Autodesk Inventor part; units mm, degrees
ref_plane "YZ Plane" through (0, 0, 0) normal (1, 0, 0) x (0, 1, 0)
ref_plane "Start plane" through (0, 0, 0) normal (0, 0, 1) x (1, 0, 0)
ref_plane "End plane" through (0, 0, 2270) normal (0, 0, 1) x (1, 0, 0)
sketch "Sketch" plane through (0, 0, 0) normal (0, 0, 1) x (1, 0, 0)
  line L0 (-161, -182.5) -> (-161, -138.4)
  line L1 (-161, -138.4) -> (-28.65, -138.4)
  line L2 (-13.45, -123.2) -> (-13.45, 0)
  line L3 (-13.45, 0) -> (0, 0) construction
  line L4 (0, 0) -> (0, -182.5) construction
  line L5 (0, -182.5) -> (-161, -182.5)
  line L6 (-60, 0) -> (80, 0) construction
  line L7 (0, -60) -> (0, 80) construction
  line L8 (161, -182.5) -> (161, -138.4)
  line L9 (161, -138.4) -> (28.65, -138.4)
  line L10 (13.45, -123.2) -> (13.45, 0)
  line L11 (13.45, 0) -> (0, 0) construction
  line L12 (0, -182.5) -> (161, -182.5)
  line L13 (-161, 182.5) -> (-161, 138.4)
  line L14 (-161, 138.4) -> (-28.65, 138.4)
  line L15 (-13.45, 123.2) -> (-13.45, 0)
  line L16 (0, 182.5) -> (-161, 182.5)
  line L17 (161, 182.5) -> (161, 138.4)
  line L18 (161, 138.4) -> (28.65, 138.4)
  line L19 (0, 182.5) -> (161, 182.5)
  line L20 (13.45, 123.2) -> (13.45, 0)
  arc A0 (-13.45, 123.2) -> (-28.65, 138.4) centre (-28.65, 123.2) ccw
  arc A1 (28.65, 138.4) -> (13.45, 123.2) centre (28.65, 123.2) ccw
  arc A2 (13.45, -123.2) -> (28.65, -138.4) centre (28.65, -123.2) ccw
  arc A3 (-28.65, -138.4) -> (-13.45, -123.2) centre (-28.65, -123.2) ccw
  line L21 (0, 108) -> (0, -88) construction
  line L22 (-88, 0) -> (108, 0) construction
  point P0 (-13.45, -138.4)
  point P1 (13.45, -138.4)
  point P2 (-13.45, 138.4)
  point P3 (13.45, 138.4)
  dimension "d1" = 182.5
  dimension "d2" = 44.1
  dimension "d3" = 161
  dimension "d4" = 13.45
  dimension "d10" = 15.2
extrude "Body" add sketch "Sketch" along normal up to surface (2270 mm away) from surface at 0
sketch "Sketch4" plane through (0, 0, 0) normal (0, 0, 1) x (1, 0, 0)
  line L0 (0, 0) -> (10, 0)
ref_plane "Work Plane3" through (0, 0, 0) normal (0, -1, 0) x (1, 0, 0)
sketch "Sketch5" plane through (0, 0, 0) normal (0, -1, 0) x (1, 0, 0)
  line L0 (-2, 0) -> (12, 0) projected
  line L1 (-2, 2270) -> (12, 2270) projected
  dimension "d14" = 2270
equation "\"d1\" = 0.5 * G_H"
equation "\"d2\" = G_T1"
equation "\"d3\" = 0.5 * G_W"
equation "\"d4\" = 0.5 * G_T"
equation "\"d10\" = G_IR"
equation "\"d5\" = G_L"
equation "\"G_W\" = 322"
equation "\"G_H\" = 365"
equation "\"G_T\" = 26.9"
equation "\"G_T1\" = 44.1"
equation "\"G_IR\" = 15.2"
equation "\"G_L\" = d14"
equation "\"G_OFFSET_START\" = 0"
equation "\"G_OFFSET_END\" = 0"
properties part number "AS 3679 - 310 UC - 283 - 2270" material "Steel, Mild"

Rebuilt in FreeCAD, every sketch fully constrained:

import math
import FreeCAD as App
import Part
import Sketcher

V = App.Vector

doc = App.newDocument("Part")
body = doc.addObject("PartDesign::Body", "Body")

# Sketch on XY plane
sketch1 = body.newObject("Sketcher::SketchObject", "Sketch")
sketch1.AttachmentSupport = (doc.getObject("XY_Plane"), [""])
sketch1.MapMode = "FlatFace"
sketch1.addGeometry([
    Part.LineSegment(V(-161, -138.4, 0), V(-161, -182.5, 0)),  # 0
    Part.LineSegment(V(-161, -182.5, 0), V(161, -182.5, 0)),  # 1
    Part.LineSegment(V(161, -182.5, 0), V(161, -138.4, 0)),  # 2
    Part.LineSegment(V(161, -138.4, 0), V(28.65, -138.4, 0)),  # 3
    Part.ArcOfCircle(Part.Circle(V(28.65, -123.2, 0), V(0, 0, 1), 15.2), math.radians(180), math.radians(270)),  # 4
    Part.LineSegment(V(13.45, -123.2, 0), V(13.45, 123.2, 0)),  # 5
    Part.ArcOfCircle(Part.Circle(V(28.65, 123.2, 0), V(0, 0, 1), 15.2), math.radians(90), math.radians(180)),  # 6
    Part.LineSegment(V(28.65, 138.4, 0), V(161, 138.4, 0)),  # 7
    Part.LineSegment(V(161, 138.4, 0), V(161, 182.5, 0)),  # 8
    Part.LineSegment(V(161, 182.5, 0), V(-161, 182.5, 0)),  # 9
    Part.LineSegment(V(-161, 182.5, 0), V(-161, 138.4, 0)),  # 10
    Part.LineSegment(V(-161, 138.4, 0), V(-28.65, 138.4, 0)),  # 11
    Part.ArcOfCircle(Part.Circle(V(-28.65, 123.2, 0), V(0, 0, 1), 15.2), math.radians(0), math.radians(90)),  # 12
    Part.LineSegment(V(-13.45, 123.2, 0), V(-13.45, -123.2, 0)),  # 13
    Part.ArcOfCircle(Part.Circle(V(-28.65, -123.2, 0), V(0, 0, 1), 15.2), math.radians(-90), math.radians(0)),  # 14
    Part.LineSegment(V(-28.65, -138.4, 0), V(-161, -138.4, 0)),  # 15
], False)
sketch1.addConstraint([
    Sketcher.Constraint("Coincident", 0, 2, 1, 1),
    Sketcher.Constraint("Coincident", 1, 2, 2, 1),
    Sketcher.Constraint("Coincident", 2, 2, 3, 1),
    Sketcher.Constraint("Tangent", 3, 2, 4, 2),
    Sketcher.Constraint("Tangent", 4, 1, 5, 1),
    Sketcher.Constraint("Tangent", 5, 2, 6, 2),
    Sketcher.Constraint("Tangent", 6, 1, 7, 1),
    Sketcher.Constraint("Coincident", 7, 2, 8, 1),
    Sketcher.Constraint("Coincident", 8, 2, 9, 1),
    Sketcher.Constraint("Coincident", 9, 2, 10, 1),
    Sketcher.Constraint("Coincident", 10, 2, 11, 1),
    Sketcher.Constraint("Tangent", 11, 2, 12, 2),
    Sketcher.Constraint("Tangent", 12, 1, 13, 1),
    Sketcher.Constraint("Tangent", 13, 2, 14, 2),
    Sketcher.Constraint("Tangent", 14, 1, 15, 1),
    Sketcher.Constraint("Coincident", 15, 2, 0, 1),
    Sketcher.Constraint("Vertical", 0),
    Sketcher.Constraint("Horizontal", 1),
    Sketcher.Constraint("Vertical", 2),
    Sketcher.Constraint("Horizontal", 3),
    Sketcher.Constraint("Vertical", 5),
    Sketcher.Constraint("Horizontal", 7),
    Sketcher.Constraint("Vertical", 8),
    Sketcher.Constraint("Horizontal", 9),
    Sketcher.Constraint("Vertical", 10),
    Sketcher.Constraint("Horizontal", 11),
    Sketcher.Constraint("Vertical", 13),
    Sketcher.Constraint("Horizontal", 15),
    Sketcher.Constraint("Equal", 4, 6),
    Sketcher.Constraint("Equal", 6, 12),
    Sketcher.Constraint("Equal", 12, 14),
    Sketcher.Constraint("Symmetric", 4, 3, 12, 3, -1, 1),
    Sketcher.Constraint("Symmetric", 0, 2, 8, 2, -1, 1),
    Sketcher.Constraint("Symmetric", 7, 2, 10, 2, -2),
    Sketcher.Constraint("Symmetric", 2, 2, 15, 2, -2),
    Sketcher.Constraint("Radius", 4, 15.2),
    Sketcher.Constraint("DistanceY", 0, 2, 0, 1, 44.1),
    Sketcher.Constraint("DistanceX", 0, 2, -1, 1, 161.0),
    Sketcher.Constraint("DistanceY", 0, 2, -1, 1, 182.5),
    Sketcher.Constraint("DistanceX", -1, 1, 4, 1, 13.45),
])
pad1 = body.newObject("PartDesign::Pad", "Pad")
pad1.Profile = sketch1
pad1.Length = 2270

doc.recompute()
